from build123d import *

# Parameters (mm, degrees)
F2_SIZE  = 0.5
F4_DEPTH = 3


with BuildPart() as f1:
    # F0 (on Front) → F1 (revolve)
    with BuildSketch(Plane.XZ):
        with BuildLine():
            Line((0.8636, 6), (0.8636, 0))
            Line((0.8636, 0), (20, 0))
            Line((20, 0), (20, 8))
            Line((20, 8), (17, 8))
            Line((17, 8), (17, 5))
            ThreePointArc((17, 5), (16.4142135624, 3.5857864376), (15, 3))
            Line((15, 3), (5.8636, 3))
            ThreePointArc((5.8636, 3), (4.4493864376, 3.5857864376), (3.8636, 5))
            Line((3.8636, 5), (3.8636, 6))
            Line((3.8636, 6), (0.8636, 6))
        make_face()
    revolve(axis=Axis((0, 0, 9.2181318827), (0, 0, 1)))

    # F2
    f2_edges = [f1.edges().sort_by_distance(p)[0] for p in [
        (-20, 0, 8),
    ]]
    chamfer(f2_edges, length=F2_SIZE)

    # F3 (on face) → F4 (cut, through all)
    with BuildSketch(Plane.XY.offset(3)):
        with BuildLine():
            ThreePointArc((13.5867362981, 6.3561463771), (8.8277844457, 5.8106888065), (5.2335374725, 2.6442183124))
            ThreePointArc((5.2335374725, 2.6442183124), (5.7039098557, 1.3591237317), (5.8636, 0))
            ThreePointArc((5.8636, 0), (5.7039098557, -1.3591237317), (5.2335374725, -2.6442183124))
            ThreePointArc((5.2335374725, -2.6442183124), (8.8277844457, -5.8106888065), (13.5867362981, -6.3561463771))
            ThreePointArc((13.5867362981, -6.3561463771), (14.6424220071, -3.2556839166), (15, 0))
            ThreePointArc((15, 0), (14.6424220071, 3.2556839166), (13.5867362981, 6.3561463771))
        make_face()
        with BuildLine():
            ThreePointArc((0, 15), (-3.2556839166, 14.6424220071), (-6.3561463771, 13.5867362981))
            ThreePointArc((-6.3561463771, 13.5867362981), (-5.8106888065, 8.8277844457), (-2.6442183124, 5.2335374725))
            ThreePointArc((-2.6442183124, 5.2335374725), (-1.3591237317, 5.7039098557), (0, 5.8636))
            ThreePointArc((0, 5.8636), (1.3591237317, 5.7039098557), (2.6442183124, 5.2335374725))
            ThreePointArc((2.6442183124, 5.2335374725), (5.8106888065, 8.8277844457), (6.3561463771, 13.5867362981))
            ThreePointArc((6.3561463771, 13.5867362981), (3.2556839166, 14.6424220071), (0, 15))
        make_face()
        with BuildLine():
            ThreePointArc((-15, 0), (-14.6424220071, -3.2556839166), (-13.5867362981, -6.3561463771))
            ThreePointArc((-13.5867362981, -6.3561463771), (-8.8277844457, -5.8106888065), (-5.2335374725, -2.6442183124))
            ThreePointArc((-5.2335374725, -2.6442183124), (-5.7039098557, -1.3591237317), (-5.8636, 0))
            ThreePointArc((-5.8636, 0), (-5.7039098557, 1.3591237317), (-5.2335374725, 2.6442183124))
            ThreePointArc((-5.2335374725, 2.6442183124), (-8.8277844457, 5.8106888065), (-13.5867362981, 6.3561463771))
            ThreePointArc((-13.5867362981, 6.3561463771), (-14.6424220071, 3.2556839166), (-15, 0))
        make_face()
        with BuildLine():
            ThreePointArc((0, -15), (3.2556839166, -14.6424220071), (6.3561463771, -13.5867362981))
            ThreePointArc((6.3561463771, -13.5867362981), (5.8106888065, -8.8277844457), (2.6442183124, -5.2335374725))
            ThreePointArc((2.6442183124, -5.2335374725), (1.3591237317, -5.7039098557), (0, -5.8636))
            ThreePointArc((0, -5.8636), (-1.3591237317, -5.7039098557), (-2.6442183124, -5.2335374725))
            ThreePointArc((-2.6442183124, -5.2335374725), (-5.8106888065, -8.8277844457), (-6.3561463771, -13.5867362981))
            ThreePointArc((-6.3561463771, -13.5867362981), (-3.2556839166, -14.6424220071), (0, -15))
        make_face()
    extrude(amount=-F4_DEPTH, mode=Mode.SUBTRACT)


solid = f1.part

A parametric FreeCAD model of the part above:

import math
import FreeCAD as App
import Part
import Sketcher
from FreeCAD import Vector
Q = App.Units.Quantity


def edges_at(feature, points):
    """Names of the edges that pass closest to the given points."""
    edges = feature.Shape.Edges
    near = lambda p: min(range(len(edges)), key=lambda i: edges[i].distToShape(Part.Vertex(*p))[0])
    return sorted({f"Edge{near(p) + 1}" for p in points})

doc = App.newDocument("Part")
params = doc.addObject("Spreadsheet::Sheet", "Params")
for row, (alias, value) in enumerate([
    ("sketch1_radius", "2 mm"),
    ("sketch1_width", "3 mm"),
    ("sketch1_height", "6 mm"),
    ("sketch1_height2", "8 mm"),
    ("revolution_angle", "360 deg"),
    ("chamfer_size", "0.5 mm"),
    ("sketch2_radius", "8 mm"),
    ("sketch2_radius2", "15 mm"),
], start=1):
    params.set(f"A{row}", alias)
    params.set(f"B{row}", "=" + value)
    params.setAlias(f"B{row}", alias)

body = doc.addObject("PartDesign::Body", "Body")

# Sketch on XZ plane
sketch1 = body.newObject("Sketcher::SketchObject", "Sketch")
sketch1.AttachmentSupport = (doc.getObject("XZ_Plane"), [""])
sketch1.MapMode = "FlatFace"
sketch1.addGeometry(Part.LineSegment(Vector(0.9, 6, 0), Vector(0.9, 0, 0)), False)
sketch1.addGeometry(Part.LineSegment(Vector(0.9, 0, 0), Vector(20, 0, 0)), False)
sketch1.addGeometry(Part.LineSegment(Vector(20, 0, 0), Vector(20, 8, 0)), False)
sketch1.addGeometry(Part.LineSegment(Vector(20, 8, 0), Vector(17, 8, 0)), False)
sketch1.addGeometry(Part.LineSegment(Vector(17, 8, 0), Vector(17, 5, 0)), False)
sketch1.addGeometry(Part.ArcOfCircle(Part.Circle(Vector(15, 5, 0), Vector(0, 0, 1), 2), math.radians(-90), math.radians(0)), False)
sketch1.addGeometry(Part.LineSegment(Vector(15, 3, 0), Vector(5.9, 3, 0)), False)
sketch1.addGeometry(Part.ArcOfCircle(Part.Circle(Vector(5.9, 5, 0), Vector(0, 0, 1), 2), math.radians(180), math.radians(270)), False)
sketch1.addGeometry(Part.LineSegment(Vector(3.9, 5, 0), Vector(3.9, 6, 0)), False)
sketch1.addGeometry(Part.LineSegment(Vector(3.9, 6, 0), Vector(0.9, 6, 0)), False)
sketch1.addConstraint(Sketcher.Constraint("Coincident", 0, 2, 1, 1))
sketch1.addConstraint(Sketcher.Constraint("Coincident", 1, 2, 2, 1))
sketch1.addConstraint(Sketcher.Constraint("Coincident", 2, 2, 3, 1))
sketch1.addConstraint(Sketcher.Constraint("Coincident", 3, 2, 4, 1))
sketch1.addConstraint(Sketcher.Constraint("Tangent", 4, 2, 5, 2))
sketch1.addConstraint(Sketcher.Constraint("Tangent", 5, 1, 6, 1))
sketch1.addConstraint(Sketcher.Constraint("Tangent", 6, 2, 7, 2))
sketch1.addConstraint(Sketcher.Constraint("Tangent", 7, 1, 8, 1))
sketch1.addConstraint(Sketcher.Constraint("Coincident", 8, 2, 9, 1))
sketch1.addConstraint(Sketcher.Constraint("Coincident", 9, 2, 0, 1))
sketch1.addConstraint(Sketcher.Constraint("Vertical", 0))
sketch1.addConstraint(Sketcher.Constraint("Horizontal", 1))
sketch1.addConstraint(Sketcher.Constraint("Vertical", 2))
sketch1.addConstraint(Sketcher.Constraint("Horizontal", 3))
sketch1.addConstraint(Sketcher.Constraint("Vertical", 4))
sketch1.addConstraint(Sketcher.Constraint("Horizontal", 6))
sketch1.addConstraint(Sketcher.Constraint("Vertical", 8))
sketch1.addConstraint(Sketcher.Constraint("Horizontal", 9))
sketch1.addConstraint(Sketcher.Constraint("Equal", 5, 7))
sketch1.addConstraint(Sketcher.Constraint("PointOnObject", 0, 2, -1))
sketch1.addConstraint(Sketcher.Constraint("Equal", 3, 9))
sketch1.addConstraint(Sketcher.Constraint("Equal", 9, 4))
sketch1.addConstraint(Sketcher.Constraint("Radius", 5, Q("2 mm")))
sketch1.addConstraint(Sketcher.Constraint("DistanceX", 3, 2, 3, 1, Q("3 mm")))
sketch1.addConstraint(Sketcher.Constraint("DistanceY", 0, 2, 0, 1, Q("6 mm")))
sketch1.addConstraint(Sketcher.Constraint("DistanceY", 2, 1, 2, 2, Q("8 mm")))
sketch1.addConstraint(Sketcher.Constraint("DistanceX", -1, 1, 5, 3, Q("15 mm")))
sketch1.addConstraint(Sketcher.Constraint("DistanceX", 1, 1, 1, 2, Q("19.1364 mm")))
sketch1.setExpression("Constraints[22]", "Params.sketch1_radius")
sketch1.setExpression("Constraints[23]", "Params.sketch1_width")
sketch1.setExpression("Constraints[24]", "Params.sketch1_height")
sketch1.setExpression("Constraints[25]", "Params.sketch1_height2")
revolution = body.newObject("PartDesign::Revolution", "Revolution")
revolution.Profile = sketch1
revolution.ReferenceAxis = (sketch1, ["V_Axis"])
revolution.setExpression("Angle", "Params.revolution_angle")
doc.recompute()

chamfer = body.newObject("PartDesign::Chamfer", "Chamfer")
chamfer.Base = (revolution, edges_at(revolution, [(-20, 0, 8)]))
chamfer.setExpression("Size", "Params.chamfer_size")

# Sketch on XY plane
sketch2 = body.newObject("Sketcher::SketchObject", "Sketch001")
sketch2.AttachmentSupport = (doc.getObject("XY_Plane"), [""])
sketch2.MapMode = "FlatFace"
sketch2.AttachmentOffset = App.Placement(Vector(0, 0, 3), App.Rotation())
sketch2.addGeometry(Part.ArcOfCircle(Part.Circle(Vector(12.1, -1.5, 0), Vector(0, 0, 1), 8), math.radians(79), math.radians(149)), False)
sketch2.addGeometry(Part.ArcOfCircle(Part.Circle(Vector(0, 0, 0), Vector(0, 0, 1), 5.9), math.radians(0), math.radians(27)), False)
sketch2.addGeometry(Part.ArcOfCircle(Part.Circle(Vector(0, 0, 0), Vector(0, 0, 1), 5.9), math.radians(-27), math.radians(0)), False)
sketch2.addGeometry(Part.ArcOfCircle(Part.Circle(Vector(12.1, 1.5, 0), Vector(0, 0, 1), 8), math.radians(-149), math.radians(-79)), False)
sketch2.addGeometry(Part.ArcOfCircle(Part.Circle(Vector(0, 0, 0), Vector(0, 0, 1), 15), math.radians(-25), math.radians(0)), False)
sketch2.addGeometry(Part.ArcOfCircle(Part.Circle(Vector(0, 0, 0), Vector(0, 0, 1), 15), math.radians(0), math.radians(25)), False)
sketch2.addGeometry(Part.ArcOfCircle(Part.Circle(Vector(0, 0, 0), Vector(0, 0, 1), 15), math.radians(90), math.radians(115)), False)
sketch2.addGeometry(Part.ArcOfCircle(Part.Circle(Vector(1.5, 12.1, 0), Vector(0, 0, 1), 8), math.radians(169), math.radians(239)), False)
sketch2.addGeometry(Part.ArcOfCircle(Part.Circle(Vector(0, 0, 0), Vector(0, 0, 1), 5.9), math.radians(90), math.radians(117)), False)
sketch2.addGeometry(Part.ArcOfCircle(Part.Circle(Vector(0, 0, 0), Vector(0, 0, 1), 5.9), math.radians(63), math.radians(90)), False)
sketch2.addGeometry(Part.ArcOfCircle(Part.Circle(Vector(-1.5, 12.1, 0), Vector(0, 0, 1), 8), math.radians(-59), math.radians(11)), False)
sketch2.addGeometry(Part.ArcOfCircle(Part.Circle(Vector(0, 0, 0), Vector(0, 0, 1), 15), math.radians(65), math.radians(90)), False)
sketch2.addGeometry(Part.ArcOfCircle(Part.Circle(Vector(0, 0, 0), Vector(0, 0, 1), 15), math.radians(180), math.radians(205)), False)
sketch2.addGeometry(Part.ArcOfCircle(Part.Circle(Vector(-12.1, 1.5, 0), Vector(0, 0, 1), 8), math.radians(-101), math.radians(-31)), False)
sketch2.addGeometry(Part.ArcOfCircle(Part.Circle(Vector(0, 0, 0), Vector(0, 0, 1), 5.9), math.radians(180), math.radians(207)), False)
sketch2.addGeometry(Part.ArcOfCircle(Part.Circle(Vector(0, 0, 0), Vector(0, 0, 1), 5.9), math.radians(153), math.radians(180)), False)
sketch2.addGeometry(Part.ArcOfCircle(Part.Circle(Vector(-12.1, -1.5, 0), Vector(0, 0, 1), 8), math.radians(31), math.radians(101)), False)
sketch2.addGeometry(Part.ArcOfCircle(Part.Circle(Vector(0, 0, 0), Vector(0, 0, 1), 15), math.radians(155), math.radians(180)), False)
sketch2.addGeometry(Part.ArcOfCircle(Part.Circle(Vector(0, 0, 0), Vector(0, 0, 1), 15), math.radians(-90), math.radians(-65)), False)
sketch2.addGeometry(Part.ArcOfCircle(Part.Circle(Vector(-1.5, -12.1, 0), Vector(0, 0, 1), 8), math.radians(-11), math.radians(59)), False)
sketch2.addGeometry(Part.ArcOfCircle(Part.Circle(Vector(0, 0, 0), Vector(0, 0, 1), 5.9), math.radians(-90), math.radians(-63)), False)
sketch2.addGeometry(Part.ArcOfCircle(Part.Circle(Vector(0, 0, 0), Vector(0, 0, 1), 5.9), math.radians(-117), math.radians(-90)), False)
sketch2.addGeometry(Part.ArcOfCircle(Part.Circle(Vector(1.5, -12.1, 0), Vector(0, 0, 1), 8), math.radians(121), math.radians(191)), False)
sketch2.addGeometry(Part.ArcOfCircle(Part.Circle(Vector(0, 0, 0), Vector(0, 0, 1), 15), math.radians(-115), math.radians(-90)), False)
sketch2.addConstraint(Sketcher.Constraint("Coincident", 0, 2, 1, 2))
sketch2.addConstraint(Sketcher.Constraint("Tangent", 1, 1, 2, 2))
sketch2.addConstraint(Sketcher.Constraint("Coincident", 2, 1, 3, 1))
sketch2.addConstraint(Sketcher.Constraint("Coincident", 3, 2, 4, 1))
sketch2.addConstraint(Sketcher.Constraint("Tangent", 4, 2, 5, 1))
sketch2.addConstraint(Sketcher.Constraint("Coincident", 5, 2, 0, 1))
sketch2.addConstraint(Sketcher.Constraint("Coincident", 6, 2, 7, 1))
sketch2.addConstraint(Sketcher.Constraint("Coincident", 7, 2, 8, 2))
sketch2.addConstraint(Sketcher.Constraint("Tangent", 8, 1, 9, 2))
sketch2.addConstraint(Sketcher.Constraint("Coincident", 9, 1, 10, 1))
sketch2.addConstraint(Sketcher.Constraint("Coincident", 10, 2, 11, 1))
sketch2.addConstraint(Sketcher.Constraint("Tangent", 11, 2, 6, 1))
sketch2.addConstraint(Sketcher.Constraint("Coincident", 12, 2, 13, 1))
sketch2.addConstraint(Sketcher.Constraint("Coincident", 13, 2, 14, 2))
sketch2.addConstraint(Sketcher.Constraint("Tangent", 14, 1, 15, 2))
sketch2.addConstraint(Sketcher.Constraint("Coincident", 15, 1, 16, 1))
sketch2.addConstraint(Sketcher.Constraint("Coincident", 16, 2, 17, 1))
sketch2.addConstraint(Sketcher.Constraint("Tangent", 17, 2, 12, 1))
sketch2.addConstraint(Sketcher.Constraint("Coincident", 18, 2, 19, 1))
sketch2.addConstraint(Sketcher.Constraint("Coincident", 19, 2, 20, 2))
sketch2.addConstraint(Sketcher.Constraint("Tangent", 20, 1, 21, 2))
sketch2.addConstraint(Sketcher.Constraint("Coincident", 21, 1, 22, 1))
sketch2.addConstraint(Sketcher.Constraint("Coincident", 22, 2, 23, 1))
sketch2.addConstraint(Sketcher.Constraint("Tangent", 23, 2, 18, 1))
sketch2.addConstraint(Sketcher.Constraint("Coincident", 1, 3, -1, 1))
sketch2.addConstraint(Sketcher.Constraint("Coincident", 4, 3, -1, 1))
sketch2.addConstraint(Sketcher.Constraint("Coincident", 6, 3, -1, 1))
sketch2.addConstraint(Sketcher.Constraint("Coincident", 8, 3, -1, 1))
sketch2.addConstraint(Sketcher.Constraint("Coincident", 12, 3, -1, 1))
sketch2.addConstraint(Sketcher.Constraint("Coincident", 14, 3, -1, 1))
sketch2.addConstraint(Sketcher.Constraint("Coincident", 18, 3, -1, 1))
sketch2.addConstraint(Sketcher.Constraint("Coincident", 20, 3, -1, 1))
sketch2.addConstraint(Sketcher.Constraint("Equal", 1, 2))
sketch2.addConstraint(Sketcher.Constraint("Equal", 0, 3))
sketch2.addConstraint(Sketcher.Constraint("Equal", 4, 5))
sketch2.addConstraint(Sketcher.Constraint("Equal", 5, 6))
sketch2.addConstraint(Sketcher.Constraint("Equal", 3, 7))
sketch2.addConstraint(Sketcher.Constraint("Equal", 2, 8))
sketch2.addConstraint(Sketcher.Constraint("Equal", 8, 9))
sketch2.addConstraint(Sketcher.Constraint("Equal", 7, 10))
sketch2.addConstraint(Sketcher.Constraint("Equal", 6, 11))
sketch2.addConstraint(Sketcher.Constraint("Equal", 11, 12))
sketch2.addConstraint(Sketcher.Constraint("Equal", 10, 13))
sketch2.addConstraint(Sketcher.Constraint("Equal", 9, 14))
sketch2.addConstraint(Sketcher.Constraint("Equal", 14, 15))
sketch2.addConstraint(Sketcher.Constraint("Equal", 13, 16))
sketch2.addConstraint(Sketcher.Constraint("Equal", 12, 17))
sketch2.addConstraint(Sketcher.Constraint("Equal", 17, 18))
sketch2.addConstraint(Sketcher.Constraint("Equal", 16, 19))
sketch2.addConstraint(Sketcher.Constraint("Equal", 15, 20))
sketch2.addConstraint(Sketcher.Constraint("Equal", 20, 21))
sketch2.addConstraint(Sketcher.Constraint("Equal", 19, 22))
sketch2.addConstraint(Sketcher.Constraint("Equal", 18, 23))
sketch2.addConstraint(Sketcher.Constraint("Symmetric", 0, 3, 13, 3, -1, 1))
sketch2.addConstraint(Sketcher.Constraint("Symmetric", 3, 3, 16, 3, -1, 1))
sketch2.addConstraint(Sketcher.Constraint("Symmetric", 7, 3, 19, 3, -1, 1))
sketch2.addConstraint(Sketcher.Constraint("Symmetric", 10, 3, 22, 3, -1, 1))
sketch2.addConstraint(Sketcher.Constraint("Symmetric", 7, 3, 10, 3, -2))
sketch2.addConstraint(Sketcher.Constraint("Symmetric", 3, 3, 13, 3, -2))
sketch2.addConstraint(Sketcher.Constraint("PointOnObject", 1, 1, -1))
sketch2.addConstraint(Sketcher.Constraint("PointOnObject", 4, 2, -1))
sketch2.addConstraint(Sketcher.Constraint("PointOnObject", 8, 1, -2))
sketch2.addConstraint(Sketcher.Constraint("PointOnObject", 11, 2, -2))
sketch2.addConstraint(Sketcher.Constraint("PointOnObject", 14, 1, -1))
sketch2.addConstraint(Sketcher.Constraint("PointOnObject", 17, 2, -1))
sketch2.addConstraint(Sketcher.Constraint("PointOnObject", 20, 1, -2))
sketch2.addConstraint(Sketcher.Constraint("PointOnObject", 23, 2, -2))
sketch2.addConstraint(Sketcher.Constraint("Radius", 0, Q("8 mm")))
sketch2.addConstraint(Sketcher.Constraint("Radius", 4, Q("15 mm")))
sketch2.addConstraint(Sketcher.Constraint("DistanceY", 0, 3, 3, 3, Q("3 mm")))
sketch2.addConstraint(Sketcher.Constraint("DistanceX", 10, 3, 7, 3, Q("3 mm")))
sketch2.addConstraint(Sketcher.Constraint("Radius", 1, Q("5.8636 mm")))
sketch2.addConstraint(Sketcher.Constraint("DistanceX", 2, 1, 3, 2, Q("8.353199 mm")))
sketch2.addConstraint(Sketcher.Constraint("DistanceY", 9, 1, 10, 2, Q("8.353199 mm")))
sketch2.setExpression("Constraints[67]", "Params.sketch2_radius")
sketch2.setExpression("Constraints[68]", "Params.sketch2_radius2")
pocket1 = body.newObject("PartDesign::Pocket", "Pocket")
pocket1.Profile = sketch2
pocket1.Type = "ThroughAll"

doc.recompute()
